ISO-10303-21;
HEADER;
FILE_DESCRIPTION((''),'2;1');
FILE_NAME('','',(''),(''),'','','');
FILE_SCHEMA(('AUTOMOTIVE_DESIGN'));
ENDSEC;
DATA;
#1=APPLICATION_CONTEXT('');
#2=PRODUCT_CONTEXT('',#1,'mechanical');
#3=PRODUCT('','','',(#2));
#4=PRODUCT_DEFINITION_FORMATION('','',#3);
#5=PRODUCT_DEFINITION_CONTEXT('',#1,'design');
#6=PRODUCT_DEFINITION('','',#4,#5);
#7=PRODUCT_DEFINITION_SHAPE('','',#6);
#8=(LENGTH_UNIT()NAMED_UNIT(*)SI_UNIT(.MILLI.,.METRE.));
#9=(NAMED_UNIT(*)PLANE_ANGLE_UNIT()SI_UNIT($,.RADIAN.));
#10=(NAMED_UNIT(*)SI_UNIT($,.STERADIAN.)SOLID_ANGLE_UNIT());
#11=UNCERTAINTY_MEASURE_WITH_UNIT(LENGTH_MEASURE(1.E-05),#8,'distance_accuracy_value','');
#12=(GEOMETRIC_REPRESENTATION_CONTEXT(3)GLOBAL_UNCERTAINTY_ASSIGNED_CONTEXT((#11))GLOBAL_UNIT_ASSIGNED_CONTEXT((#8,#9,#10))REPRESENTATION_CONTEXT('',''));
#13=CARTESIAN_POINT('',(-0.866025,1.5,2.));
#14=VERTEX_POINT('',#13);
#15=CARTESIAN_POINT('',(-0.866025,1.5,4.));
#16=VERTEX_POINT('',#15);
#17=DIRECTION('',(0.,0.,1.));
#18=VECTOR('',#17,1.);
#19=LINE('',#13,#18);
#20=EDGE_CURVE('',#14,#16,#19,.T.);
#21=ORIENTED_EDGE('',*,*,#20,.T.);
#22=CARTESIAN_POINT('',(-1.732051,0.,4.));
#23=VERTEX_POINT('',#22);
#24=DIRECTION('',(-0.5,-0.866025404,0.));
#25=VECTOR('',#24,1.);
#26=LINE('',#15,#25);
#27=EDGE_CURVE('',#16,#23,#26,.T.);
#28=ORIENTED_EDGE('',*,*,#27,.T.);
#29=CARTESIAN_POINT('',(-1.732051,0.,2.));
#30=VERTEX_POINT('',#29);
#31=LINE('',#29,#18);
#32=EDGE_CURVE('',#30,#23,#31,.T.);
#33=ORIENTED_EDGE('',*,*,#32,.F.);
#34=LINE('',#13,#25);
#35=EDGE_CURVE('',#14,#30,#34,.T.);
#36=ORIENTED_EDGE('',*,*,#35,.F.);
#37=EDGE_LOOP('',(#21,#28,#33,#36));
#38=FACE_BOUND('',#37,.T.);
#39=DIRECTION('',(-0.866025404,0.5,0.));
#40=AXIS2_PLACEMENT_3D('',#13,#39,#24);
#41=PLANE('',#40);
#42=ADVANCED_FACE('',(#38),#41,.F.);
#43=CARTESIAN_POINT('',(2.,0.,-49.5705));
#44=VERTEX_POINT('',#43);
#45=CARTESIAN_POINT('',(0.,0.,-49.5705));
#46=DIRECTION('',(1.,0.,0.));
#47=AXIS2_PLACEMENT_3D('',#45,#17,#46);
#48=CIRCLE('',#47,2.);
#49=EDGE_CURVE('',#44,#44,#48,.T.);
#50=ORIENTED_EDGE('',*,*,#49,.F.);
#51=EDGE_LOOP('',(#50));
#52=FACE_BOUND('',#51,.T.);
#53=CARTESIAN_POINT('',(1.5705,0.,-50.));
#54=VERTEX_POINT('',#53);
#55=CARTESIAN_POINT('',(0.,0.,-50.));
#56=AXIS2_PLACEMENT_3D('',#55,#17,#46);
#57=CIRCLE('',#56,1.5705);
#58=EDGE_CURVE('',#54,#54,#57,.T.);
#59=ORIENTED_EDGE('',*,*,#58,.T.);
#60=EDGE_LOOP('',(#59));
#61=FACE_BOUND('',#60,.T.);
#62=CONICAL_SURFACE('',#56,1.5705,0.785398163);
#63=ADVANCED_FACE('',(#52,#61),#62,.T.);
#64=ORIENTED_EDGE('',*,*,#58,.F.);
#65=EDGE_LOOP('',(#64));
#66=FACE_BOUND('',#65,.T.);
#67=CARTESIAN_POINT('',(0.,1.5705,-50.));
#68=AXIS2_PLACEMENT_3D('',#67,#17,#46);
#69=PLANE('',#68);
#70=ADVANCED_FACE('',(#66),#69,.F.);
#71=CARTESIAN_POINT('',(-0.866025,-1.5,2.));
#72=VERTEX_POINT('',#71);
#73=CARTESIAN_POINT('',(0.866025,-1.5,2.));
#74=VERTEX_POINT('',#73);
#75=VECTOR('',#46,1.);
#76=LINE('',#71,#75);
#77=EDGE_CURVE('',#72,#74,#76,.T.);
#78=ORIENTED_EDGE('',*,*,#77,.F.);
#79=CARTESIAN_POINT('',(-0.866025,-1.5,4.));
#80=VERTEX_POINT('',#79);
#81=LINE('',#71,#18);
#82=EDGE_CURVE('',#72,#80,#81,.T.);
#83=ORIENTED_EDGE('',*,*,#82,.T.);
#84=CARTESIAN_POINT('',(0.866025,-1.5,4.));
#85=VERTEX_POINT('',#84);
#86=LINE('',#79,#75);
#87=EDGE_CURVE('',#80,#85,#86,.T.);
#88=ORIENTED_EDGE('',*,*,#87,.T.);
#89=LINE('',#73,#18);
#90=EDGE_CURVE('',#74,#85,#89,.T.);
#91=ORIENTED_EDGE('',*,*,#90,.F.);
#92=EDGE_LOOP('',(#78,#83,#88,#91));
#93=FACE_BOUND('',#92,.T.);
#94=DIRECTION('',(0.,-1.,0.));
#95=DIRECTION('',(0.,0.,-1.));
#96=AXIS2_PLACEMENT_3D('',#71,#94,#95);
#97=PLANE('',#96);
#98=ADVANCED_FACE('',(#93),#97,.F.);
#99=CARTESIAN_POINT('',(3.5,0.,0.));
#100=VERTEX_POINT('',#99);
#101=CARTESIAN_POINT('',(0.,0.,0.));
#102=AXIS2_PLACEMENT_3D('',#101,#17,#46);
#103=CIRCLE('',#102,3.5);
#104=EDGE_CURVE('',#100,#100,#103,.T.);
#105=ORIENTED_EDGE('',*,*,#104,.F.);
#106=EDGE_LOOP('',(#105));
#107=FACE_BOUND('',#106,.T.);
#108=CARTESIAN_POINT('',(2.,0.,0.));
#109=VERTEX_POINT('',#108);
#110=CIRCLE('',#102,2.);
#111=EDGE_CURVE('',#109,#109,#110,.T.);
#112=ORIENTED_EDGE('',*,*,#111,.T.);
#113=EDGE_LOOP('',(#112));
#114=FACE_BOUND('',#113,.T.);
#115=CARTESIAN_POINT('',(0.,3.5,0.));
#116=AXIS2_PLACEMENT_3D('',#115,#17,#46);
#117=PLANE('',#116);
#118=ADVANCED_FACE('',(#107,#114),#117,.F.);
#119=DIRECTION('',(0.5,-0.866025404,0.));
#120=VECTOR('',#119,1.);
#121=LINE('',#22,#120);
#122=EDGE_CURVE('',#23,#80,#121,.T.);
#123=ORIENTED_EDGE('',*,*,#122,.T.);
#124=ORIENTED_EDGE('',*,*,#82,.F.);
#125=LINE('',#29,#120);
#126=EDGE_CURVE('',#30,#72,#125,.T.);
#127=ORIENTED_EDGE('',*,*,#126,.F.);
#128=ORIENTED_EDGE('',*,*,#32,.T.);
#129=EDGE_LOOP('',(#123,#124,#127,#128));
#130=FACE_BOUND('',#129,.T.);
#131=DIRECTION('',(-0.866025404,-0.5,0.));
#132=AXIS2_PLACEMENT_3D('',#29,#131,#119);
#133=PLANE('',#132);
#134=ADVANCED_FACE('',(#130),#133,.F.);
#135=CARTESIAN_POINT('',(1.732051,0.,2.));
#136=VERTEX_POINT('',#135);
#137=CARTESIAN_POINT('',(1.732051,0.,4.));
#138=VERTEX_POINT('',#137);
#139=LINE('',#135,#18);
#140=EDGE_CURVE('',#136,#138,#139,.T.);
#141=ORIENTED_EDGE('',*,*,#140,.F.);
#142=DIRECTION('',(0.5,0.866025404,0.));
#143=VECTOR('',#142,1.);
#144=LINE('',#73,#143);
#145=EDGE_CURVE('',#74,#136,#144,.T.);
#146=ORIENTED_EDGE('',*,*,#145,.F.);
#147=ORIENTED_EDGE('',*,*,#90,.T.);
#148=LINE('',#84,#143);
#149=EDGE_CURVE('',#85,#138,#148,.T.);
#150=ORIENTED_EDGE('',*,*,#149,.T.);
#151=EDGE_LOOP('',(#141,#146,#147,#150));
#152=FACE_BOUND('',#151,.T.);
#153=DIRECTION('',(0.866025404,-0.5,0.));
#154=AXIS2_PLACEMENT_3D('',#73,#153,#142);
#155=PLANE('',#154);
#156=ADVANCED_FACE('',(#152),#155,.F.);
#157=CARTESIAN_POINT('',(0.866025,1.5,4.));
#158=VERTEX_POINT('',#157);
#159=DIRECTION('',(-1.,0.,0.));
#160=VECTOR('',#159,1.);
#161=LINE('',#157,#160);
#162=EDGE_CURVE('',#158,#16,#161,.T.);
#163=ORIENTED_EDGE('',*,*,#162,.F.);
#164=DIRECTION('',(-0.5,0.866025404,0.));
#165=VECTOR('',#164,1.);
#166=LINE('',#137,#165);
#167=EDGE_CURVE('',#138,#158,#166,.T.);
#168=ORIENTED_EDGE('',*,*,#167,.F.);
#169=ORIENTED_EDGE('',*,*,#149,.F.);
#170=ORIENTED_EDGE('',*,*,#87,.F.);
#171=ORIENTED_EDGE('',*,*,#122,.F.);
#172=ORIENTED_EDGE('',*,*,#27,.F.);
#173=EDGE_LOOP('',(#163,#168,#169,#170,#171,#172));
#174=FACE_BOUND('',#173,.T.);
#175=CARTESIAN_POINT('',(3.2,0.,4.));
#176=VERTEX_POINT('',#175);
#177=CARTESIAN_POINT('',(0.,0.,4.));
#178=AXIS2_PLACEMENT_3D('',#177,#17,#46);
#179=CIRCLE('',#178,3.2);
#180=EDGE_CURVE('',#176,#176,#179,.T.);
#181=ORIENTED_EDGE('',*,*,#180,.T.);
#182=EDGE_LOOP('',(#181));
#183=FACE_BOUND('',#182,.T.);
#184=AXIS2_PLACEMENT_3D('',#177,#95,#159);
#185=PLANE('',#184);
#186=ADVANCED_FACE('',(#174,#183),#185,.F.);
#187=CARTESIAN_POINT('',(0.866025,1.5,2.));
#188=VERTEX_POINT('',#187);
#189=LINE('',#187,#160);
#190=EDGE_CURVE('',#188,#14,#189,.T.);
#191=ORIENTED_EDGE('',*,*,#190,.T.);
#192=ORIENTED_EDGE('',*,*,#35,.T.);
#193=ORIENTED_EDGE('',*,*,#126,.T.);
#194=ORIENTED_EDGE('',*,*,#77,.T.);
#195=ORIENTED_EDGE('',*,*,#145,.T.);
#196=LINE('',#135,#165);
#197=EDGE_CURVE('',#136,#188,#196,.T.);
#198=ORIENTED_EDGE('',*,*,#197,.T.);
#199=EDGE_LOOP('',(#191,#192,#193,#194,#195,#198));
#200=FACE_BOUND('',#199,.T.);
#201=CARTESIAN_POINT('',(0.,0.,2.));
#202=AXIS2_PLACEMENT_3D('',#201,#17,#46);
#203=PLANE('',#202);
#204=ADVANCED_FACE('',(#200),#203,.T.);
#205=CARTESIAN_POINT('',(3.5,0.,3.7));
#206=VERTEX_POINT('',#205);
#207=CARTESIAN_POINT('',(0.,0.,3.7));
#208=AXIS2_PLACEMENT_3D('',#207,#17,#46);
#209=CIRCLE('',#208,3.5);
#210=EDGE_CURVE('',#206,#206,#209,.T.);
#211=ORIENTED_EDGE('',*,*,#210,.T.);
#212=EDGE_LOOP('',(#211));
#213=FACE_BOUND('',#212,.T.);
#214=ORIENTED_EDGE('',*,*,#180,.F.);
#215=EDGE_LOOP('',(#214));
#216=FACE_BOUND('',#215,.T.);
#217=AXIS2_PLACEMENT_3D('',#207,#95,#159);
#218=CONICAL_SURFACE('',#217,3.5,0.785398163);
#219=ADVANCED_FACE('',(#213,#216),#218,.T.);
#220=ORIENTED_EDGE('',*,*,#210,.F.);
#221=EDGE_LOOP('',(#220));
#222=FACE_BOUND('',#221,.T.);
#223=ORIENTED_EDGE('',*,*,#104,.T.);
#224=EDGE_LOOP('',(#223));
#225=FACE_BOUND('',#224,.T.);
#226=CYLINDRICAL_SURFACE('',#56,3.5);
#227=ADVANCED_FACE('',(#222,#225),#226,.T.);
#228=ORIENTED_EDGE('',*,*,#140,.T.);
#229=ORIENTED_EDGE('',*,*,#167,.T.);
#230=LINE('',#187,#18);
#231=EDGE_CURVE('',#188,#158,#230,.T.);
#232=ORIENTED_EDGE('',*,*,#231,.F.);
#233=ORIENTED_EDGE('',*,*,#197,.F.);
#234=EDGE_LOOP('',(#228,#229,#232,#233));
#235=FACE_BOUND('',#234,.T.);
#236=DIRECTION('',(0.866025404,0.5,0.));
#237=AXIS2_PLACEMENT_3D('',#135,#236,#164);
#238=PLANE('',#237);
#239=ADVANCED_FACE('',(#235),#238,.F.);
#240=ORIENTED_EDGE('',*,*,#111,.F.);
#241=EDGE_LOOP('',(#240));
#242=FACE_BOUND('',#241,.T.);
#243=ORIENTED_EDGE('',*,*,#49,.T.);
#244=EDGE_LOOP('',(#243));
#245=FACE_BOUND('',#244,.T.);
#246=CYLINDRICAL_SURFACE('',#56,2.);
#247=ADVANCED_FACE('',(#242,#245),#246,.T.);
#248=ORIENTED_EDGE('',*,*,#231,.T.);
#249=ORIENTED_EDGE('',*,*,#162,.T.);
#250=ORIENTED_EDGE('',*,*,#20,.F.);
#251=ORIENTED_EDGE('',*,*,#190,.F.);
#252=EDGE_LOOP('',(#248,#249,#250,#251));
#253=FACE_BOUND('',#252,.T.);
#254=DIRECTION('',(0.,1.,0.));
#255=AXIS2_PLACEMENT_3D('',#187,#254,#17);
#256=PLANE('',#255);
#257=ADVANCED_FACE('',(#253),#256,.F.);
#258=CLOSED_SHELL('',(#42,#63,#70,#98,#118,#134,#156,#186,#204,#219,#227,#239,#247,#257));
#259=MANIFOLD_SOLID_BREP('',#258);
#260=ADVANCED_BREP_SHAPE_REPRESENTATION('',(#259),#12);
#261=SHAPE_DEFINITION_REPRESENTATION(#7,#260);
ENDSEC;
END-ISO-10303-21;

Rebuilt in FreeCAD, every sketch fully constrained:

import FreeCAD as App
import Part
import Sketcher

V = App.Vector
Q = App.Units.Quantity


def add_polygon(sketch, points):
    """Adds a closed chain of lines whose ends are joined by coincident constraints."""
    first, n = sketch.GeometryCount, len(points)
    for a, b in zip(points, points[1:] + points[:1]):
        sketch.addGeometry(Part.LineSegment(App.Vector(*a, 0), App.Vector(*b, 0)), False)
    for i in range(n):
        sketch.addConstraint(Sketcher.Constraint("Coincident", first + i, 2, first + (i + 1) % n, 1))

doc = App.newDocument("Part")
body = doc.addObject("PartDesign::Body", "Body")

# Sketch on YZ plane
sketch1 = doc.addObject("Sketcher::SketchObject", "Sketch")
body.addObject(sketch1)
sketch1.AttachmentSupport = (doc.YZ_Plane, [""])
sketch1.MapMode = "FlatFace"
add_polygon(sketch1, [(3.2, 4), (0, 4), (0, -50), (1.57, -50), (2, -49.57), (2, 0), (3.5, 0), (3.5, 3.7)])  # lines 0-7
sketch1.addConstraint([
    Sketcher.Constraint("Horizontal", 0),
    Sketcher.Constraint("Vertical", 1),
    Sketcher.Constraint("Horizontal", 2),
    Sketcher.Constraint("Vertical", 4),
    Sketcher.Constraint("Horizontal", 5),
    Sketcher.Constraint("Vertical", 6),
    Sketcher.Constraint("PointOnObject", 0, 2, -2),
    Sketcher.Constraint("PointOnObject", 4, 2, -1),
    Sketcher.Constraint("Perpendicular", 3, 7),
    Sketcher.Constraint("DistanceY", 1, 2, 1, 1, 54.0),
    Sketcher.Constraint("Angle", 3, Q("45 deg")),
    Sketcher.Constraint("DistanceX", 0, 2, 0, 1, 3.2),
    Sketcher.Constraint("DistanceX", 5, 1, 5, 2, 1.5),
    Sketcher.Constraint("DistanceY", 6, 1, 6, 2, 3.7),
    Sketcher.Constraint("DistanceY", -1, 1, 0, 2, 4.0),
    Sketcher.Constraint("DistanceX", 2, 1, 2, 2, 1.5705),
])
revolution = doc.addObject("PartDesign::Revolution", "Revolution")
body.addObject(revolution)
revolution.Profile = sketch1
revolution.ReferenceAxis = (sketch1, ["V_Axis"])
revolution.Angle = 360

# Sketch on XY plane
sketch2 = doc.addObject("Sketcher::SketchObject", "Sketch001")
body.addObject(sketch2)
sketch2.AttachmentSupport = (doc.XY_Plane, [""])
sketch2.MapMode = "FlatFace"
sketch2.AttachmentOffset = App.Placement(V(0, 0, 4), App.Rotation())
add_polygon(sketch2, [(-0.9, -1.5), (0.9, -1.5), (1.7, 0), (0.9, 1.5), (-0.9, 1.5), (-1.7, 0)])  # lines 0-5
sketch2.addConstraint([
    Sketcher.Constraint("Horizontal", 0),
    Sketcher.Constraint("Horizontal", 3),
    Sketcher.Constraint("Symmetric", 0, 2, 3, 2, -1, 1),
    Sketcher.Constraint("Symmetric", 1, 2, 4, 2, -1, 1),
    Sketcher.Constraint("PointOnObject", 1, 2, -1),
    Sketcher.Constraint("Parallel", 2, 5),
    Sketcher.Constraint("Vertical", 0, 2, 2, 2),
    Sketcher.Constraint("Angle", 1, Q("60 deg")),
    Sketcher.Constraint("DistanceY", 0, 2, 2, 2, 3.0),
    Sketcher.Constraint("DistanceX", 0, 1, 0, 2, 1.732051),
])
pocket1 = doc.addObject("PartDesign::Pocket", "Pocket")
body.addObject(pocket1)
pocket1.Profile = sketch2
pocket1.Length = 2

doc.recompute()
